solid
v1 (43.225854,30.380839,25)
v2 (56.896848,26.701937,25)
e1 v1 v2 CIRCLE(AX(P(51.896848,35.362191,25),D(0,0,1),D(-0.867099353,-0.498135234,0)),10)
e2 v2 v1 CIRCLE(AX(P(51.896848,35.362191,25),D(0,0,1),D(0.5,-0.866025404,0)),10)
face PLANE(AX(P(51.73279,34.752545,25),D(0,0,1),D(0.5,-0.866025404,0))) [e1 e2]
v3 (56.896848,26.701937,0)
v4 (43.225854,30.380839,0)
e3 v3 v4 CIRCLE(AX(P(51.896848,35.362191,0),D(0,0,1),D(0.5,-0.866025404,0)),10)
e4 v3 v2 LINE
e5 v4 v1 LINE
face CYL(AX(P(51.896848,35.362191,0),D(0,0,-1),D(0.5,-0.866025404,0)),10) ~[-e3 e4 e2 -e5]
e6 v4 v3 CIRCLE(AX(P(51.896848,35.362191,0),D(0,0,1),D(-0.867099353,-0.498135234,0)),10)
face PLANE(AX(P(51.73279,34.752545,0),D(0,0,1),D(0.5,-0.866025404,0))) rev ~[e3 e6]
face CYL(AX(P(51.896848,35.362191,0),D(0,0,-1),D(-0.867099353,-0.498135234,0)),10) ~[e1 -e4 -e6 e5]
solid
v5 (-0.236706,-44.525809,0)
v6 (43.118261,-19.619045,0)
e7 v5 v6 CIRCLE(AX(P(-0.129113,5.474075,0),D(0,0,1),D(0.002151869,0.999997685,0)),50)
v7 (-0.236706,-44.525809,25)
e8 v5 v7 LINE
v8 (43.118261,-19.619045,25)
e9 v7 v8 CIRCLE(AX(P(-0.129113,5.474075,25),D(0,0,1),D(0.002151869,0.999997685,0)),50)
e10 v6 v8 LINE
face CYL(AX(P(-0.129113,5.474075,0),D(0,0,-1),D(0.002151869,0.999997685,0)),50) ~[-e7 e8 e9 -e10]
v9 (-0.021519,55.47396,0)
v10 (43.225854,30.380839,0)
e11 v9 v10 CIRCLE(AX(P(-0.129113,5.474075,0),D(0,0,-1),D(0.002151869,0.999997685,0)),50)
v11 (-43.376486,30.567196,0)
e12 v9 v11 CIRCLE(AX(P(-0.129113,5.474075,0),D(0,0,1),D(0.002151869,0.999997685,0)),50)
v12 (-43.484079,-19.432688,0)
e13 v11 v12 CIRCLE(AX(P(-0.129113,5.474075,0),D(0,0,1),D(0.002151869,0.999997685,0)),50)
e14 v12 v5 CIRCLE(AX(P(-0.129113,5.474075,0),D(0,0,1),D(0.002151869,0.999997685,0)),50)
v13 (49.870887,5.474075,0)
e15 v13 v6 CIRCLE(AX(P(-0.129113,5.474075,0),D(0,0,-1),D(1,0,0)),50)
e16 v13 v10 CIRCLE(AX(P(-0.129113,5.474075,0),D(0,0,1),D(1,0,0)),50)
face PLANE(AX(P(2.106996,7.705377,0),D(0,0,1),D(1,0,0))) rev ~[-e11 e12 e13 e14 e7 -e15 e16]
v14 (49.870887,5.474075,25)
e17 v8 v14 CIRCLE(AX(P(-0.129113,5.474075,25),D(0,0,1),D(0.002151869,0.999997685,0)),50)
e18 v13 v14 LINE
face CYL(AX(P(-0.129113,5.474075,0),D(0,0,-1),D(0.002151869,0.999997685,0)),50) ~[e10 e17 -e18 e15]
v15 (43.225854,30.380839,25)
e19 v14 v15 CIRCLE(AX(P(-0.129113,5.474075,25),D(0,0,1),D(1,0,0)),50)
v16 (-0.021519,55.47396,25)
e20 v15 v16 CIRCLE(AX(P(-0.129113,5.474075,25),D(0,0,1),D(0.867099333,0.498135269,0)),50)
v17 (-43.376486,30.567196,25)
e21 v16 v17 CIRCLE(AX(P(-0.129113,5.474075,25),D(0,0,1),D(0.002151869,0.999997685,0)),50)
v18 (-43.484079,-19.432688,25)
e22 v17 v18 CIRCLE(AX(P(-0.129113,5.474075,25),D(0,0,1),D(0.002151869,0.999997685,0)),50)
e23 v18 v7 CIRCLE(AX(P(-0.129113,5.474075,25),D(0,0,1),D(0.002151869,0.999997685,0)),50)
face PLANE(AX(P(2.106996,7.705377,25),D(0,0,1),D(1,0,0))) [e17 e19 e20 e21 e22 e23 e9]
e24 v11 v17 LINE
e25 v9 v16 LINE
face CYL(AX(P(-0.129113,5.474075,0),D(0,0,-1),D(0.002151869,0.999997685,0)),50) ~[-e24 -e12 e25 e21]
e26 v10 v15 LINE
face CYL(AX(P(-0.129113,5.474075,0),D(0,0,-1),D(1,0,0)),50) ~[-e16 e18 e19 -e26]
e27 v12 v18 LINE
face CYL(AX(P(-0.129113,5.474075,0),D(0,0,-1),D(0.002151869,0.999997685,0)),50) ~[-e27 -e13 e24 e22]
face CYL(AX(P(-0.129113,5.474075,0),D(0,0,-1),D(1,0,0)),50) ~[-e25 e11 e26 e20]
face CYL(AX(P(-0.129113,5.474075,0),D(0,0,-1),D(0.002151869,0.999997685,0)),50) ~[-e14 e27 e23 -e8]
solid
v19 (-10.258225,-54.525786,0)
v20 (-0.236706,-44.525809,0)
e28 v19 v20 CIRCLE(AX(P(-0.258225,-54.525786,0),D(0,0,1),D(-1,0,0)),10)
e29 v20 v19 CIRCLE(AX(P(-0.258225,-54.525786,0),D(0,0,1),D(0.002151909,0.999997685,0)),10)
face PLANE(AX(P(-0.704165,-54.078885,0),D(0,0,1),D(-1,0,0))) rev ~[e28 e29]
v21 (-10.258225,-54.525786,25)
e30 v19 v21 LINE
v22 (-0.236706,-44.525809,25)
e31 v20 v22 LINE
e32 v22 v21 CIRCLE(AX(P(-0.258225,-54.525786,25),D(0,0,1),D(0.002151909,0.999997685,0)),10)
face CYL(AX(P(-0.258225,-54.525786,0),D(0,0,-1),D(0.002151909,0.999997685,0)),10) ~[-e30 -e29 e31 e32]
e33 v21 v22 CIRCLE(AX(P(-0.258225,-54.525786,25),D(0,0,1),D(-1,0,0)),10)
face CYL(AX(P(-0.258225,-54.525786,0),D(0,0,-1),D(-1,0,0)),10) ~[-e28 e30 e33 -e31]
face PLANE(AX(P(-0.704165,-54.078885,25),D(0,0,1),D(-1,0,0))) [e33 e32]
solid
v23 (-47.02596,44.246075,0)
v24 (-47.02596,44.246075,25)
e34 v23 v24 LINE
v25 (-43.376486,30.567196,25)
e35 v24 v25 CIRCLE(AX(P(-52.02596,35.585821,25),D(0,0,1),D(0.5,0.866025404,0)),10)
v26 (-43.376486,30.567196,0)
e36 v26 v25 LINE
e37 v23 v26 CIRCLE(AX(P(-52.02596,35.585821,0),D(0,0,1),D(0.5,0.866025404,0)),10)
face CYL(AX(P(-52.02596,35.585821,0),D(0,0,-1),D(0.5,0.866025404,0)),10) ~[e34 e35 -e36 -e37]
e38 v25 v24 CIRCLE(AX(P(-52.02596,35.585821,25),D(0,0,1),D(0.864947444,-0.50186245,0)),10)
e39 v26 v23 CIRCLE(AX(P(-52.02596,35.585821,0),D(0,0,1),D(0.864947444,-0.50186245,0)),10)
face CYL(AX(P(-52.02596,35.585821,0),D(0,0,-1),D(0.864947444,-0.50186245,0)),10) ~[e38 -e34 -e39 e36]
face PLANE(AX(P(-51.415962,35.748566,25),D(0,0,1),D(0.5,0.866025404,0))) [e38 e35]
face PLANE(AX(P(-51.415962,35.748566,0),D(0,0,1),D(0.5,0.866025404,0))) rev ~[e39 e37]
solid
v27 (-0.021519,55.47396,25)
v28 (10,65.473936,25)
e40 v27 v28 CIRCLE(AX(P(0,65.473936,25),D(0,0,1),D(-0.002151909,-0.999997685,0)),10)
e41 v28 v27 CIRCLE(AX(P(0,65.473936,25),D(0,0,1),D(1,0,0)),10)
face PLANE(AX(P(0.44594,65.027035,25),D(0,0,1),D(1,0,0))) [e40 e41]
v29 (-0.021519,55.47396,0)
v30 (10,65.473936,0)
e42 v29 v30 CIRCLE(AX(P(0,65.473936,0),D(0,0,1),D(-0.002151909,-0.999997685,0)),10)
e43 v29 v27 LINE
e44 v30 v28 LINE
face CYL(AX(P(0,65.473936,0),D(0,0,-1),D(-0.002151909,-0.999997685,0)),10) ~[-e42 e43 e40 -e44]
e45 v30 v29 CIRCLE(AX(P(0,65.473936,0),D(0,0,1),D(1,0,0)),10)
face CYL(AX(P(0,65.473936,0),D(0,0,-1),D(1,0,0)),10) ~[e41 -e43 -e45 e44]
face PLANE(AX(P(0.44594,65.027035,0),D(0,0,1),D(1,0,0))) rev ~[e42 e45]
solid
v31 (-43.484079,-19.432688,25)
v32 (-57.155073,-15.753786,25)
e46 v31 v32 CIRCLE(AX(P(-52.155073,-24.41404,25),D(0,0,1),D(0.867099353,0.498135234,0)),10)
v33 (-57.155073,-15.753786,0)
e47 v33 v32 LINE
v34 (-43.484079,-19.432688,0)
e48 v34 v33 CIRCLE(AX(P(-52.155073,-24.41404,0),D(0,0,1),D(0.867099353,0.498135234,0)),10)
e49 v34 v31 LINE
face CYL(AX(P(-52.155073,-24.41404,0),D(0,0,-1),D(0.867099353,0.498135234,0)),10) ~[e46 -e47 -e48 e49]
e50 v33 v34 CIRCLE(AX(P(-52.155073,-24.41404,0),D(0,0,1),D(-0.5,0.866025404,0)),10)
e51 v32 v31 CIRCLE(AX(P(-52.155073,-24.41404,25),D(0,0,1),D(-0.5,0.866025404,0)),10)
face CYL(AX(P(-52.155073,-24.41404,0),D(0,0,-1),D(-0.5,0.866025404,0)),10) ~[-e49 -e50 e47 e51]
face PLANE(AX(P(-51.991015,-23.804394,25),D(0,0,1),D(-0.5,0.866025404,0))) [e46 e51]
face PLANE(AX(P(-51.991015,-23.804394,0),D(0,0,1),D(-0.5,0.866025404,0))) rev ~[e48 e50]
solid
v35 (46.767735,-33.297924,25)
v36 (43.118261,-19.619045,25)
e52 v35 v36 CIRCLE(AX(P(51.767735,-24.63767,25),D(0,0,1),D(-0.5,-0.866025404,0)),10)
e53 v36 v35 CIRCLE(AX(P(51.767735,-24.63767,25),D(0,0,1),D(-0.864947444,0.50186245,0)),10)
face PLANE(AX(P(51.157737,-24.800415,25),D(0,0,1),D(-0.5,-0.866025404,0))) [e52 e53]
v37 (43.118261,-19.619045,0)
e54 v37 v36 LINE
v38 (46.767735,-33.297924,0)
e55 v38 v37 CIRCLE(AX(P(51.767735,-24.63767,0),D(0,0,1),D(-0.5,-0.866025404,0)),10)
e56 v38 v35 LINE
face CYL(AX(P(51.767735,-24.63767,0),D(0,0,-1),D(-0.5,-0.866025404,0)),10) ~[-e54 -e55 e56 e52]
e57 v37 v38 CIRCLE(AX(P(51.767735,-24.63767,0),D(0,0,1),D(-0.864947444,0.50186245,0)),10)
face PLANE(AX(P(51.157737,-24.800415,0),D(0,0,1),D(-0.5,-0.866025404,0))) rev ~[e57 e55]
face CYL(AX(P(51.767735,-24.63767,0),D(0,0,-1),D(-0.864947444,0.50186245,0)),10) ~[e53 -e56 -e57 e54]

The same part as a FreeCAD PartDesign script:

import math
import FreeCAD as App
import Part
import Sketcher
from FreeCAD import Vector
Q = App.Units.Quantity

doc = App.newDocument("Part")
body = doc.addObject("PartDesign::Body", "Body")
body.AllowCompound = True

# Sketch on XY plane
sketch1 = body.newObject("Sketcher::SketchObject", "Sketch")
sketch1.AttachmentSupport = (doc.getObject("XY_Plane"), [""])
sketch1.MapMode = "FlatFace"
sketch1.addGeometry(Part.ArcOfCircle(Part.Circle(Vector(0, 5, 0), Vector(0, 0, 1), 50), math.radians(90), math.radians(360)), False)
sketch1.addGeometry(Part.ArcOfCircle(Part.Circle(Vector(0, 5, 0), Vector(0, 0, 1), 50), math.radians(0), math.radians(90)), False)
sketch1.addConstraint(Sketcher.Constraint("Tangent", 0, 1, 1, 2))
sketch1.addConstraint(Sketcher.Constraint("Coincident", 1, 1, 0, 2))
sketch1.addConstraint(Sketcher.Constraint("Horizontal", 0, 3, 1, 1))
sketch1.addConstraint(Sketcher.Constraint("Radius", 0, Q("50 mm")))
sketch1.addConstraint(Sketcher.Constraint("DistanceX", 0, 1, -1, 1, Q("0.021519 mm")))
sketch1.addConstraint(Sketcher.Constraint("DistanceY", -1, 1, 0, 1, Q("55.47396 mm")))
sketch1.addConstraint(Sketcher.Constraint("DistanceX", 0, 3, -1, 1, Q("0.129113 mm")))
pad1 = body.newObject("PartDesign::Pad", "Pad")
pad1.Profile = sketch1
pad1.Length = 25

# Sketch on XY plane
sketch2 = body.newObject("Sketcher::SketchObject", "Sketch001")
sketch2.AttachmentSupport = (doc.getObject("XY_Plane"), [""])
sketch2.MapMode = "FlatFace"
sketch2.addGeometry(Part.ArcOfCircle(Part.Circle(Vector(0, 65, 0), Vector(0, 0, 1), 10), math.radians(0), math.radians(270)), False)
sketch2.addGeometry(Part.ArcOfCircle(Part.Circle(Vector(0, 65, 0), Vector(0, 0, 1), 10), math.radians(-90), math.radians(0)), False)
sketch2.addConstraint(Sketcher.Constraint("Tangent", 0, 1, 1, 2))
sketch2.addConstraint(Sketcher.Constraint("Coincident", 1, 1, 0, 2))
sketch2.addConstraint(Sketcher.Constraint("PointOnObject", 0, 3, -2))
sketch2.addConstraint(Sketcher.Constraint("Horizontal", 1, 3, 0, 1))
sketch2.addConstraint(Sketcher.Constraint("Radius", 0, Q("10 mm")))
sketch2.addConstraint(Sketcher.Constraint("DistanceX", 1, 1, -1, 1, Q("0.021519 mm")))
sketch2.addConstraint(Sketcher.Constraint("DistanceY", -1, 1, 1, 1, Q("55.47396 mm")))
pad2 = body.newObject("PartDesign::Pad", "Pad001")
pad2.Profile = sketch2
pad2.Length = 25
body2 = doc.addObject("PartDesign::Body", "Body001")
body2.AllowCompound = True
doc.recompute()

body2.BaseFeature = body
doc.recompute()

body3 = doc.addObject("PartDesign::Body", "Body002")
body3.BaseFeature = body
body3.Placement = App.Placement(Vector(-4.805245, 2.625223, 0), App.Rotation(Vector(0, 0, -1), 60))
boolean = body2.newObject("PartDesign::Boolean", "Boolean")
boolean.Type = "Fuse"
boolean.addObjects([body3])
doc.recompute()

body4 = doc.addObject("PartDesign::Body", "Body003")
body4.BaseFeature = body
body4.Placement = App.Placement(Vector(-4.934357, 8.099298, 0), App.Rotation(Vector(0, 0, -1), 120))
boolean2 = body2.newObject("PartDesign::Boolean", "Boolean001")
boolean2.Type = "Fuse"
boolean2.addObjects([body4])
doc.recompute()

body5 = doc.addObject("PartDesign::Body", "Body004")
body5.BaseFeature = body
body5.Placement = App.Placement(Vector(-0.258225, 10.948151, 0), App.Rotation(Vector(0, 0, -1), 180))
boolean3 = body2.newObject("PartDesign::Boolean", "Boolean002")
boolean3.Type = "Fuse"
boolean3.addObjects([body5])
doc.recompute()

body6 = doc.addObject("PartDesign::Body", "Body005")
body6.BaseFeature = body
body6.Placement = App.Placement(Vector(4.54702, 8.322928, 0), App.Rotation(Vector(0, 0, -1), 240))
boolean4 = body2.newObject("PartDesign::Boolean", "Boolean003")
boolean4.Type = "Fuse"
boolean4.addObjects([body6])
doc.recompute()

body.Placement = App.Placement(Vector(4.676132, 2.848852, 0), App.Rotation(Vector(0, 0, -1), 300))
boolean5 = body2.newObject("PartDesign::Boolean", "Boolean004")
boolean5.Type = "Fuse"
boolean5.addObjects([body])

doc.recompute()
